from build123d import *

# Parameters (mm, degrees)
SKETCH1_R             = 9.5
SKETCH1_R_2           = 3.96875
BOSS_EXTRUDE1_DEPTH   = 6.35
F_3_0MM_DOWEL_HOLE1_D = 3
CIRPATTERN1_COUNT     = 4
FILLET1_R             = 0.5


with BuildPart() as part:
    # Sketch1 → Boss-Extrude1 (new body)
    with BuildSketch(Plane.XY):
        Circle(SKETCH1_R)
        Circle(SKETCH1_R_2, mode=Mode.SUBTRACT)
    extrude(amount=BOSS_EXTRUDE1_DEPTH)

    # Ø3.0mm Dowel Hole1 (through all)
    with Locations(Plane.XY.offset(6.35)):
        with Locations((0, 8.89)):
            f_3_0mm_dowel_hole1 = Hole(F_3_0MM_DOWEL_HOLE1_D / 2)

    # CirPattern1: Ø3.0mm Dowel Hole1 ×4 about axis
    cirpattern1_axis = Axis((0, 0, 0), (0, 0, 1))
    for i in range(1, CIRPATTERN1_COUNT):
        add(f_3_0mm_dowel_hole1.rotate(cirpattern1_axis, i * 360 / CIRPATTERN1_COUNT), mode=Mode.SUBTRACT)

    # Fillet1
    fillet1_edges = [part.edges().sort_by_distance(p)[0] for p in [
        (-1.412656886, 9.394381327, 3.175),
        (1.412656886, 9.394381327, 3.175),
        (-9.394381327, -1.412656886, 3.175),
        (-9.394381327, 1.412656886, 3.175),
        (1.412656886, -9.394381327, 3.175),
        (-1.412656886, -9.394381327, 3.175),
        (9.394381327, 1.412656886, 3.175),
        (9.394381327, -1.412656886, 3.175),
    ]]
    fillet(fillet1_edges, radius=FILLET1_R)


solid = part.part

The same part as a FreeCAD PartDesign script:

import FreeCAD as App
import Part
import Sketcher

V = App.Vector


def edges_at(feature, points):
    """Names of the edges that pass closest to the given points."""
    edges = feature.Shape.Edges
    near = lambda p: min(range(len(edges)), key=lambda i: edges[i].distToShape(Part.Vertex(*p))[0])
    return sorted({f"Edge{near(p) + 1}" for p in points})

doc = App.newDocument("Part")
params = doc.addObject("Spreadsheet::Sheet", "Params")
for row, (alias, value) in enumerate([
    ("sketch1_diameter", "19 mm"),
    ("pad1_length", "6.35 mm"),
    ("sketch2_diameter", "3 mm"),
    ("hole_diameter", "3 mm"),
    ("fillet_radius", "0.5 mm"),
], start=1):
    params.set(f"A{row}", alias)
    params.set(f"B{row}", "=" + value)
    params.setAlias(f"B{row}", alias)

body = doc.addObject("PartDesign::Body", "Body")

sketch1 = body.newObject("Sketcher::SketchObject", "Sketch")
sketch1.AttachmentSupport = (doc.getObject("XY_Plane"), [""])
sketch1.MapMode = "FlatFace"
sketch1.addGeometry([
    Part.Circle(V(0, 0, 0), V(0, 0, 1), 9.5),
    Part.Circle(V(0, 0, 0), V(0, 0, 1), 3.96875),
], False)
sketch1.addConstraint([
    Sketcher.Constraint("Coincident", 0, 3, -1, 1),
    Sketcher.Constraint("Coincident", 1, 3, -1, 1),
    Sketcher.Constraint("Diameter", 0, 19.0),
    Sketcher.Constraint("Diameter", 1, 7.9375),
])
sketch1.setExpression("Constraints[2]", "Params.sketch1_diameter")
pad1 = body.newObject("PartDesign::Pad", "Pad")
pad1.Profile = sketch1
pad1.setExpression("Length", "Params.pad1_length")

sketch2 = body.newObject("Sketcher::SketchObject", "Sketch001")
sketch2.AttachmentSupport = (doc.getObject("XY_Plane"), [""])
sketch2.MapMode = "FlatFace"
sketch2.AttachmentOffset = App.Placement(V(0, 0, 6.35), App.Rotation())
sketch2.addGeometry(Part.Circle(V(0, 8.89, 0), V(0, 0, 1), 1.5), False)
sketch2.addConstraint([
    Sketcher.Constraint("PointOnObject", 0, 3, -2),
    Sketcher.Constraint("Diameter", 0, 3.0),
    Sketcher.Constraint("DistanceY", -1, 1, 0, 3, 8.89),
])
sketch2.setExpression("Constraints[1]", "Params.sketch2_diameter")
doc.recompute()
hole = body.newObject("PartDesign::Hole", "Hole")
hole.Profile = sketch2
hole.ThreadType = "None"
hole.setExpression("Diameter", "Params.hole_diameter")
hole.DepthType = "ThroughAll"
doc.recompute()

polarpattern = body.newObject("PartDesign::PolarPattern", "PolarPattern")
polarpattern.Originals = [hole]
polarpattern.Axis = (doc.getObject("Z_Axis"), [""])
polarpattern.Angle = 360
polarpattern.Occurrences = 4
body.Tip = polarpattern
doc.recompute()

fillet = body.newObject("PartDesign::Fillet", "Fillet")
fillet.Base = (polarpattern, edges_at(polarpattern, [
    (-1.413, 9.394, 3.175),
    (1.413, 9.394, 3.175),
    (-9.394, -1.413, 3.175),
    (-9.394, 1.413, 3.175),
    (1.413, -9.394, 3.175),
    (-1.413, -9.394, 3.175),
    (9.394, 1.413, 3.175),
    (9.394, -1.413, 3.175),
]))
fillet.setExpression("Radius", "Params.fillet_radius")

doc.recompute()
